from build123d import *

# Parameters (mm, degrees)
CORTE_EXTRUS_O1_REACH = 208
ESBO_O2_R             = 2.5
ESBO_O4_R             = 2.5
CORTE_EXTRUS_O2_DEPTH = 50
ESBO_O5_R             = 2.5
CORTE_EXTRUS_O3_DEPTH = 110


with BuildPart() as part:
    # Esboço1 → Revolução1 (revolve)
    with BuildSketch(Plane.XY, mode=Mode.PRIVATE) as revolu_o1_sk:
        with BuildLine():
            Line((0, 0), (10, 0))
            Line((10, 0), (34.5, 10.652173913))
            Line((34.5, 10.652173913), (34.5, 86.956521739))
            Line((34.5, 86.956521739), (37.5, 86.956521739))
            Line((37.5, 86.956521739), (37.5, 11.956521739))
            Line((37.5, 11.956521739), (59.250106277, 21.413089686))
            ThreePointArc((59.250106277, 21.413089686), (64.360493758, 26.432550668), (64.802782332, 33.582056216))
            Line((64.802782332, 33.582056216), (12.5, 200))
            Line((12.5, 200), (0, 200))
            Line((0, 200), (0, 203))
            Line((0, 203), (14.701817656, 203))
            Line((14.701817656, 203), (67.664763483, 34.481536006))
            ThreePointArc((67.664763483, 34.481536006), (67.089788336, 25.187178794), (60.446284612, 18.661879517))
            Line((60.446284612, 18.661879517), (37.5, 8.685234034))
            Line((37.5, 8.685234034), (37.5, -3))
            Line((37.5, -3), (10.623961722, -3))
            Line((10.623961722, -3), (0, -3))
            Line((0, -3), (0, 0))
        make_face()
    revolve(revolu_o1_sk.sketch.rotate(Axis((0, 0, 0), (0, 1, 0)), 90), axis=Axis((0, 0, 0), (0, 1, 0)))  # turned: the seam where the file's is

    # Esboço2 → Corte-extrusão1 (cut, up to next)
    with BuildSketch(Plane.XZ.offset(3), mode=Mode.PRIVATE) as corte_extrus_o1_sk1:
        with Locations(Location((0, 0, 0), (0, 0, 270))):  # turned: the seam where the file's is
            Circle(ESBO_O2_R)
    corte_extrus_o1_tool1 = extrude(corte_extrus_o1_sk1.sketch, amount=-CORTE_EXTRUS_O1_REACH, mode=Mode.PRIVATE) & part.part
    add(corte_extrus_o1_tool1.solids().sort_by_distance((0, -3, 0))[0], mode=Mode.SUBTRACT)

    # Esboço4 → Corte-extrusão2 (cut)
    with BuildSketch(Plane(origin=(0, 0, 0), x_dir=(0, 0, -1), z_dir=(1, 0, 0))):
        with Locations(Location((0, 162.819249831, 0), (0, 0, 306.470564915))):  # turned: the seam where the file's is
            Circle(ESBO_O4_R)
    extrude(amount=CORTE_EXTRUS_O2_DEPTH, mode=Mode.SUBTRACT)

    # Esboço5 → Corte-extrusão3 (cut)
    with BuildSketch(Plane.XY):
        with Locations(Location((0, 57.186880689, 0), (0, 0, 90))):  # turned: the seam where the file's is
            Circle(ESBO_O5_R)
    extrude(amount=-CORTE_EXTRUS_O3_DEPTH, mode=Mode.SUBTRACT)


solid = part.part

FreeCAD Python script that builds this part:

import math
import FreeCAD as App
import Part
import Sketcher
from FreeCAD import Vector
Q = App.Units.Quantity

doc = App.newDocument("Part")
body = doc.addObject("PartDesign::Body", "Body")

sketch1 = doc.addObject("Sketcher::SketchObject", "Sketch")
body.addObject(sketch1)
sketch1.AttachmentSupport = (doc.XY_Plane, [""])
sketch1.MapMode = "FlatFace"
sketch1.addGeometry(Part.LineSegment(Vector(10, 0, 0), Vector(0, 0, 0)), False)
sketch1.addGeometry(Part.LineSegment(Vector(0, 0, 0), Vector(0, -3, 0)), False)
sketch1.addGeometry(Part.LineSegment(Vector(0, -3, 0), Vector(37.5, -3, 0)), False)
sketch1.addGeometry(Part.LineSegment(Vector(37.5, -3, 0), Vector(37.5, 8.685234, 0)), False)
sketch1.addGeometry(Part.LineSegment(Vector(37.5, 8.685234, 0), Vector(60.446285, 18.66188, 0)), False)
sketch1.addGeometry(Part.ArcOfCircle(Part.Circle(Vector(55.262845, 30.58379, 0), Vector(0, 0, 1), 13), math.radians(-66.501434), math.radians(17.447188)), False)
sketch1.addGeometry(Part.LineSegment(Vector(67.664763, 34.481536, 0), Vector(14.701818, 203, 0)), False)
sketch1.addGeometry(Part.LineSegment(Vector(14.701818, 203, 0), Vector(0, 203, 0)), False)
sketch1.addGeometry(Part.LineSegment(Vector(0, 203, 0), Vector(0, 200, 0)), False)
sketch1.addGeometry(Part.LineSegment(Vector(0, 200, 0), Vector(12.5, 200, 0)), False)
sketch1.addGeometry(Part.LineSegment(Vector(12.5, 200, 0), Vector(64.802782, 33.582056, 0)), False)
sketch1.addGeometry(Part.ArcOfCircle(Part.Circle(Vector(55.262845, 30.58379, 0), Vector(0, 0, 1), 10), math.radians(-66.501434), math.radians(17.447188)), False)
sketch1.addGeometry(Part.LineSegment(Vector(59.250106, 21.41309, 0), Vector(37.5, 11.956522, 0)), False)
sketch1.addGeometry(Part.LineSegment(Vector(37.5, 11.956522, 0), Vector(37.5, 86.956522, 0)), False)
sketch1.addGeometry(Part.LineSegment(Vector(37.5, 86.956522, 0), Vector(34.5, 86.956522, 0)), False)
sketch1.addGeometry(Part.LineSegment(Vector(34.5, 86.956522, 0), Vector(34.5, 10.652174, 0)), False)
sketch1.addGeometry(Part.LineSegment(Vector(34.5, 10.652174, 0), Vector(10, 0, 0)), False)
sketch1.addConstraint(Sketcher.Constraint("Coincident", 0, 2, 1, 1))
sketch1.addConstraint(Sketcher.Constraint("Coincident", 1, 2, 2, 1))
sketch1.addConstraint(Sketcher.Constraint("Coincident", 2, 2, 3, 1))
sketch1.addConstraint(Sketcher.Constraint("Coincident", 3, 2, 4, 1))
sketch1.addConstraint(Sketcher.Constraint("Tangent", 4, 2, 5, 1))
sketch1.addConstraint(Sketcher.Constraint("Tangent", 5, 2, 6, 1))
sketch1.addConstraint(Sketcher.Constraint("Coincident", 6, 2, 7, 1))
sketch1.addConstraint(Sketcher.Constraint("Coincident", 7, 2, 8, 1))
sketch1.addConstraint(Sketcher.Constraint("Coincident", 8, 2, 9, 1))
sketch1.addConstraint(Sketcher.Constraint("Coincident", 9, 2, 10, 1))
sketch1.addConstraint(Sketcher.Constraint("Tangent", 10, 2, 11, 2))
sketch1.addConstraint(Sketcher.Constraint("Tangent", 11, 1, 12, 1))
sketch1.addConstraint(Sketcher.Constraint("Coincident", 12, 2, 13, 1))
sketch1.addConstraint(Sketcher.Constraint("Coincident", 13, 2, 14, 1))
sketch1.addConstraint(Sketcher.Constraint("Coincident", 14, 2, 15, 1))
sketch1.addConstraint(Sketcher.Constraint("Coincident", 15, 2, 16, 1))
sketch1.addConstraint(Sketcher.Constraint("Coincident", 16, 2, 0, 1))
sketch1.addConstraint(Sketcher.Constraint("Horizontal", 0))
sketch1.addConstraint(Sketcher.Constraint("Vertical", 1))
sketch1.addConstraint(Sketcher.Constraint("Horizontal", 2))
sketch1.addConstraint(Sketcher.Constraint("Vertical", 3))
sketch1.addConstraint(Sketcher.Constraint("Horizontal", 7))
sketch1.addConstraint(Sketcher.Constraint("Vertical", 8))
sketch1.addConstraint(Sketcher.Constraint("Horizontal", 9))
sketch1.addConstraint(Sketcher.Constraint("Vertical", 13))
sketch1.addConstraint(Sketcher.Constraint("Horizontal", 14))
sketch1.addConstraint(Sketcher.Constraint("Vertical", 15))
sketch1.addConstraint(Sketcher.Constraint("Coincident", 0, 2, -1, 1))
sketch1.addConstraint(Sketcher.Constraint("Coincident", 11, 3, 5, 3))
sketch1.addConstraint(Sketcher.Constraint("PointOnObject", 7, 2, -2))
sketch1.addConstraint(Sketcher.Constraint("Parallel", 6, 10))
sketch1.addConstraint(Sketcher.Constraint("Parallel", 4, 12))
sketch1.addConstraint(Sketcher.Constraint("Parallel", 12, 16))
sketch1.addConstraint(Sketcher.Constraint("Vertical", 3, 2, 12, 2))
sketch1.addConstraint(Sketcher.Constraint("Equal", 14, 1))
sketch1.addConstraint(Sketcher.Constraint("Equal", 1, 8))
sketch1.addConstraint(Sketcher.Constraint("Radius", 5, Q("13 mm")))
sketch1.addConstraint(Sketcher.Constraint("Radius", 11, Q("10 mm")))
sketch1.addConstraint(Sketcher.Constraint("DistanceX", 0, 2, 0, 1, Q("10 mm")))
sketch1.addConstraint(Sketcher.Constraint("DistanceX", 14, 2, 14, 1, Q("3 mm")))
sketch1.addConstraint(Sketcher.Constraint("DistanceY", 13, 1, 13, 2, Q("75 mm")))
sketch1.addConstraint(Sketcher.Constraint("DistanceX", 2, 1, 2, 2, Q("37.5 mm")))
sketch1.addConstraint(Sketcher.Constraint("DistanceX", 9, 1, 9, 2, Q("12.5 mm")))
sketch1.addConstraint(Sketcher.Constraint("DistanceY", -1, 1, 6, 2, Q("203 mm")))
sketch1.addConstraint(Sketcher.Constraint("Distance", 4, Q("25.0213 mm")))
sketch1.addConstraint(Sketcher.Constraint("DistanceY", 3, 2, 5, 2, Q("25.796302 mm")))
sketch1.addConstraint(Sketcher.Constraint("DistanceY", 3, 1, 3, 2, Q("11.685234 mm")))
revolution = doc.addObject("PartDesign::Revolution", "Revolution")
body.addObject(revolution)
revolution.Profile = sketch1
revolution.ReferenceAxis = (sketch1, ["V_Axis"])
revolution.Angle = 360

sketch2 = doc.addObject("Sketcher::SketchObject", "Sketch001")
body.addObject(sketch2)
sketch2.AttachmentSupport = (doc.XZ_Plane, [""])
sketch2.MapMode = "FlatFace"
sketch2.AttachmentOffset = App.Placement(Vector(0, 0, 3), App.Rotation())
sketch2.addGeometry(Part.Circle(Vector(0, 0, 0), Vector(0, 0, 1), 2.5), False)
sketch2.addConstraint(Sketcher.Constraint("Coincident", 0, 3, -1, 1))
sketch2.addConstraint(Sketcher.Constraint("Diameter", 0, Q("5 mm")))
pocket1 = doc.addObject("PartDesign::Pocket", "Pocket")
body.addObject(pocket1)
pocket1.Profile = sketch2
pocket1.Type = "UpToFirst"

sketch3 = doc.addObject("Sketcher::SketchObject", "Sketch002")
body.addObject(sketch3)
sketch3.AttachmentSupport = (doc.YZ_Plane, [""])
sketch3.MapMode = "FlatFace"
sketch3.addGeometry(Part.Circle(Vector(162.81925, 0, 0), Vector(0, 0, 1), 2.5), False)
sketch3.addConstraint(Sketcher.Constraint("PointOnObject", 0, 3, -1))
sketch3.addConstraint(Sketcher.Constraint("Diameter", 0, Q("5 mm")))
sketch3.addConstraint(Sketcher.Constraint("DistanceX", -1, 1, 0, 3, Q("162.81925 mm")))
pocket2 = doc.addObject("PartDesign::Pocket", "Pocket001")
body.addObject(pocket2)
pocket2.Profile = sketch3
pocket2.Length = 50
pocket2.Reversed = True

sketch4 = doc.addObject("Sketcher::SketchObject", "Sketch003")
body.addObject(sketch4)
sketch4.AttachmentSupport = (doc.XY_Plane, [""])
sketch4.MapMode = "FlatFace"
sketch4.addGeometry(Part.Circle(Vector(0, 57.186881, 0), Vector(0, 0, 1), 2.5), False)
sketch4.addConstraint(Sketcher.Constraint("PointOnObject", 0, 3, -2))
sketch4.addConstraint(Sketcher.Constraint("Diameter", 0, Q("5 mm")))
sketch4.addConstraint(Sketcher.Constraint("DistanceY", -1, 1, 0, 3, Q("57.186881 mm")))
pocket3 = doc.addObject("PartDesign::Pocket", "Pocket002")
body.addObject(pocket3)
pocket3.Profile = sketch4
pocket3.Length = 110

doc.recompute()
